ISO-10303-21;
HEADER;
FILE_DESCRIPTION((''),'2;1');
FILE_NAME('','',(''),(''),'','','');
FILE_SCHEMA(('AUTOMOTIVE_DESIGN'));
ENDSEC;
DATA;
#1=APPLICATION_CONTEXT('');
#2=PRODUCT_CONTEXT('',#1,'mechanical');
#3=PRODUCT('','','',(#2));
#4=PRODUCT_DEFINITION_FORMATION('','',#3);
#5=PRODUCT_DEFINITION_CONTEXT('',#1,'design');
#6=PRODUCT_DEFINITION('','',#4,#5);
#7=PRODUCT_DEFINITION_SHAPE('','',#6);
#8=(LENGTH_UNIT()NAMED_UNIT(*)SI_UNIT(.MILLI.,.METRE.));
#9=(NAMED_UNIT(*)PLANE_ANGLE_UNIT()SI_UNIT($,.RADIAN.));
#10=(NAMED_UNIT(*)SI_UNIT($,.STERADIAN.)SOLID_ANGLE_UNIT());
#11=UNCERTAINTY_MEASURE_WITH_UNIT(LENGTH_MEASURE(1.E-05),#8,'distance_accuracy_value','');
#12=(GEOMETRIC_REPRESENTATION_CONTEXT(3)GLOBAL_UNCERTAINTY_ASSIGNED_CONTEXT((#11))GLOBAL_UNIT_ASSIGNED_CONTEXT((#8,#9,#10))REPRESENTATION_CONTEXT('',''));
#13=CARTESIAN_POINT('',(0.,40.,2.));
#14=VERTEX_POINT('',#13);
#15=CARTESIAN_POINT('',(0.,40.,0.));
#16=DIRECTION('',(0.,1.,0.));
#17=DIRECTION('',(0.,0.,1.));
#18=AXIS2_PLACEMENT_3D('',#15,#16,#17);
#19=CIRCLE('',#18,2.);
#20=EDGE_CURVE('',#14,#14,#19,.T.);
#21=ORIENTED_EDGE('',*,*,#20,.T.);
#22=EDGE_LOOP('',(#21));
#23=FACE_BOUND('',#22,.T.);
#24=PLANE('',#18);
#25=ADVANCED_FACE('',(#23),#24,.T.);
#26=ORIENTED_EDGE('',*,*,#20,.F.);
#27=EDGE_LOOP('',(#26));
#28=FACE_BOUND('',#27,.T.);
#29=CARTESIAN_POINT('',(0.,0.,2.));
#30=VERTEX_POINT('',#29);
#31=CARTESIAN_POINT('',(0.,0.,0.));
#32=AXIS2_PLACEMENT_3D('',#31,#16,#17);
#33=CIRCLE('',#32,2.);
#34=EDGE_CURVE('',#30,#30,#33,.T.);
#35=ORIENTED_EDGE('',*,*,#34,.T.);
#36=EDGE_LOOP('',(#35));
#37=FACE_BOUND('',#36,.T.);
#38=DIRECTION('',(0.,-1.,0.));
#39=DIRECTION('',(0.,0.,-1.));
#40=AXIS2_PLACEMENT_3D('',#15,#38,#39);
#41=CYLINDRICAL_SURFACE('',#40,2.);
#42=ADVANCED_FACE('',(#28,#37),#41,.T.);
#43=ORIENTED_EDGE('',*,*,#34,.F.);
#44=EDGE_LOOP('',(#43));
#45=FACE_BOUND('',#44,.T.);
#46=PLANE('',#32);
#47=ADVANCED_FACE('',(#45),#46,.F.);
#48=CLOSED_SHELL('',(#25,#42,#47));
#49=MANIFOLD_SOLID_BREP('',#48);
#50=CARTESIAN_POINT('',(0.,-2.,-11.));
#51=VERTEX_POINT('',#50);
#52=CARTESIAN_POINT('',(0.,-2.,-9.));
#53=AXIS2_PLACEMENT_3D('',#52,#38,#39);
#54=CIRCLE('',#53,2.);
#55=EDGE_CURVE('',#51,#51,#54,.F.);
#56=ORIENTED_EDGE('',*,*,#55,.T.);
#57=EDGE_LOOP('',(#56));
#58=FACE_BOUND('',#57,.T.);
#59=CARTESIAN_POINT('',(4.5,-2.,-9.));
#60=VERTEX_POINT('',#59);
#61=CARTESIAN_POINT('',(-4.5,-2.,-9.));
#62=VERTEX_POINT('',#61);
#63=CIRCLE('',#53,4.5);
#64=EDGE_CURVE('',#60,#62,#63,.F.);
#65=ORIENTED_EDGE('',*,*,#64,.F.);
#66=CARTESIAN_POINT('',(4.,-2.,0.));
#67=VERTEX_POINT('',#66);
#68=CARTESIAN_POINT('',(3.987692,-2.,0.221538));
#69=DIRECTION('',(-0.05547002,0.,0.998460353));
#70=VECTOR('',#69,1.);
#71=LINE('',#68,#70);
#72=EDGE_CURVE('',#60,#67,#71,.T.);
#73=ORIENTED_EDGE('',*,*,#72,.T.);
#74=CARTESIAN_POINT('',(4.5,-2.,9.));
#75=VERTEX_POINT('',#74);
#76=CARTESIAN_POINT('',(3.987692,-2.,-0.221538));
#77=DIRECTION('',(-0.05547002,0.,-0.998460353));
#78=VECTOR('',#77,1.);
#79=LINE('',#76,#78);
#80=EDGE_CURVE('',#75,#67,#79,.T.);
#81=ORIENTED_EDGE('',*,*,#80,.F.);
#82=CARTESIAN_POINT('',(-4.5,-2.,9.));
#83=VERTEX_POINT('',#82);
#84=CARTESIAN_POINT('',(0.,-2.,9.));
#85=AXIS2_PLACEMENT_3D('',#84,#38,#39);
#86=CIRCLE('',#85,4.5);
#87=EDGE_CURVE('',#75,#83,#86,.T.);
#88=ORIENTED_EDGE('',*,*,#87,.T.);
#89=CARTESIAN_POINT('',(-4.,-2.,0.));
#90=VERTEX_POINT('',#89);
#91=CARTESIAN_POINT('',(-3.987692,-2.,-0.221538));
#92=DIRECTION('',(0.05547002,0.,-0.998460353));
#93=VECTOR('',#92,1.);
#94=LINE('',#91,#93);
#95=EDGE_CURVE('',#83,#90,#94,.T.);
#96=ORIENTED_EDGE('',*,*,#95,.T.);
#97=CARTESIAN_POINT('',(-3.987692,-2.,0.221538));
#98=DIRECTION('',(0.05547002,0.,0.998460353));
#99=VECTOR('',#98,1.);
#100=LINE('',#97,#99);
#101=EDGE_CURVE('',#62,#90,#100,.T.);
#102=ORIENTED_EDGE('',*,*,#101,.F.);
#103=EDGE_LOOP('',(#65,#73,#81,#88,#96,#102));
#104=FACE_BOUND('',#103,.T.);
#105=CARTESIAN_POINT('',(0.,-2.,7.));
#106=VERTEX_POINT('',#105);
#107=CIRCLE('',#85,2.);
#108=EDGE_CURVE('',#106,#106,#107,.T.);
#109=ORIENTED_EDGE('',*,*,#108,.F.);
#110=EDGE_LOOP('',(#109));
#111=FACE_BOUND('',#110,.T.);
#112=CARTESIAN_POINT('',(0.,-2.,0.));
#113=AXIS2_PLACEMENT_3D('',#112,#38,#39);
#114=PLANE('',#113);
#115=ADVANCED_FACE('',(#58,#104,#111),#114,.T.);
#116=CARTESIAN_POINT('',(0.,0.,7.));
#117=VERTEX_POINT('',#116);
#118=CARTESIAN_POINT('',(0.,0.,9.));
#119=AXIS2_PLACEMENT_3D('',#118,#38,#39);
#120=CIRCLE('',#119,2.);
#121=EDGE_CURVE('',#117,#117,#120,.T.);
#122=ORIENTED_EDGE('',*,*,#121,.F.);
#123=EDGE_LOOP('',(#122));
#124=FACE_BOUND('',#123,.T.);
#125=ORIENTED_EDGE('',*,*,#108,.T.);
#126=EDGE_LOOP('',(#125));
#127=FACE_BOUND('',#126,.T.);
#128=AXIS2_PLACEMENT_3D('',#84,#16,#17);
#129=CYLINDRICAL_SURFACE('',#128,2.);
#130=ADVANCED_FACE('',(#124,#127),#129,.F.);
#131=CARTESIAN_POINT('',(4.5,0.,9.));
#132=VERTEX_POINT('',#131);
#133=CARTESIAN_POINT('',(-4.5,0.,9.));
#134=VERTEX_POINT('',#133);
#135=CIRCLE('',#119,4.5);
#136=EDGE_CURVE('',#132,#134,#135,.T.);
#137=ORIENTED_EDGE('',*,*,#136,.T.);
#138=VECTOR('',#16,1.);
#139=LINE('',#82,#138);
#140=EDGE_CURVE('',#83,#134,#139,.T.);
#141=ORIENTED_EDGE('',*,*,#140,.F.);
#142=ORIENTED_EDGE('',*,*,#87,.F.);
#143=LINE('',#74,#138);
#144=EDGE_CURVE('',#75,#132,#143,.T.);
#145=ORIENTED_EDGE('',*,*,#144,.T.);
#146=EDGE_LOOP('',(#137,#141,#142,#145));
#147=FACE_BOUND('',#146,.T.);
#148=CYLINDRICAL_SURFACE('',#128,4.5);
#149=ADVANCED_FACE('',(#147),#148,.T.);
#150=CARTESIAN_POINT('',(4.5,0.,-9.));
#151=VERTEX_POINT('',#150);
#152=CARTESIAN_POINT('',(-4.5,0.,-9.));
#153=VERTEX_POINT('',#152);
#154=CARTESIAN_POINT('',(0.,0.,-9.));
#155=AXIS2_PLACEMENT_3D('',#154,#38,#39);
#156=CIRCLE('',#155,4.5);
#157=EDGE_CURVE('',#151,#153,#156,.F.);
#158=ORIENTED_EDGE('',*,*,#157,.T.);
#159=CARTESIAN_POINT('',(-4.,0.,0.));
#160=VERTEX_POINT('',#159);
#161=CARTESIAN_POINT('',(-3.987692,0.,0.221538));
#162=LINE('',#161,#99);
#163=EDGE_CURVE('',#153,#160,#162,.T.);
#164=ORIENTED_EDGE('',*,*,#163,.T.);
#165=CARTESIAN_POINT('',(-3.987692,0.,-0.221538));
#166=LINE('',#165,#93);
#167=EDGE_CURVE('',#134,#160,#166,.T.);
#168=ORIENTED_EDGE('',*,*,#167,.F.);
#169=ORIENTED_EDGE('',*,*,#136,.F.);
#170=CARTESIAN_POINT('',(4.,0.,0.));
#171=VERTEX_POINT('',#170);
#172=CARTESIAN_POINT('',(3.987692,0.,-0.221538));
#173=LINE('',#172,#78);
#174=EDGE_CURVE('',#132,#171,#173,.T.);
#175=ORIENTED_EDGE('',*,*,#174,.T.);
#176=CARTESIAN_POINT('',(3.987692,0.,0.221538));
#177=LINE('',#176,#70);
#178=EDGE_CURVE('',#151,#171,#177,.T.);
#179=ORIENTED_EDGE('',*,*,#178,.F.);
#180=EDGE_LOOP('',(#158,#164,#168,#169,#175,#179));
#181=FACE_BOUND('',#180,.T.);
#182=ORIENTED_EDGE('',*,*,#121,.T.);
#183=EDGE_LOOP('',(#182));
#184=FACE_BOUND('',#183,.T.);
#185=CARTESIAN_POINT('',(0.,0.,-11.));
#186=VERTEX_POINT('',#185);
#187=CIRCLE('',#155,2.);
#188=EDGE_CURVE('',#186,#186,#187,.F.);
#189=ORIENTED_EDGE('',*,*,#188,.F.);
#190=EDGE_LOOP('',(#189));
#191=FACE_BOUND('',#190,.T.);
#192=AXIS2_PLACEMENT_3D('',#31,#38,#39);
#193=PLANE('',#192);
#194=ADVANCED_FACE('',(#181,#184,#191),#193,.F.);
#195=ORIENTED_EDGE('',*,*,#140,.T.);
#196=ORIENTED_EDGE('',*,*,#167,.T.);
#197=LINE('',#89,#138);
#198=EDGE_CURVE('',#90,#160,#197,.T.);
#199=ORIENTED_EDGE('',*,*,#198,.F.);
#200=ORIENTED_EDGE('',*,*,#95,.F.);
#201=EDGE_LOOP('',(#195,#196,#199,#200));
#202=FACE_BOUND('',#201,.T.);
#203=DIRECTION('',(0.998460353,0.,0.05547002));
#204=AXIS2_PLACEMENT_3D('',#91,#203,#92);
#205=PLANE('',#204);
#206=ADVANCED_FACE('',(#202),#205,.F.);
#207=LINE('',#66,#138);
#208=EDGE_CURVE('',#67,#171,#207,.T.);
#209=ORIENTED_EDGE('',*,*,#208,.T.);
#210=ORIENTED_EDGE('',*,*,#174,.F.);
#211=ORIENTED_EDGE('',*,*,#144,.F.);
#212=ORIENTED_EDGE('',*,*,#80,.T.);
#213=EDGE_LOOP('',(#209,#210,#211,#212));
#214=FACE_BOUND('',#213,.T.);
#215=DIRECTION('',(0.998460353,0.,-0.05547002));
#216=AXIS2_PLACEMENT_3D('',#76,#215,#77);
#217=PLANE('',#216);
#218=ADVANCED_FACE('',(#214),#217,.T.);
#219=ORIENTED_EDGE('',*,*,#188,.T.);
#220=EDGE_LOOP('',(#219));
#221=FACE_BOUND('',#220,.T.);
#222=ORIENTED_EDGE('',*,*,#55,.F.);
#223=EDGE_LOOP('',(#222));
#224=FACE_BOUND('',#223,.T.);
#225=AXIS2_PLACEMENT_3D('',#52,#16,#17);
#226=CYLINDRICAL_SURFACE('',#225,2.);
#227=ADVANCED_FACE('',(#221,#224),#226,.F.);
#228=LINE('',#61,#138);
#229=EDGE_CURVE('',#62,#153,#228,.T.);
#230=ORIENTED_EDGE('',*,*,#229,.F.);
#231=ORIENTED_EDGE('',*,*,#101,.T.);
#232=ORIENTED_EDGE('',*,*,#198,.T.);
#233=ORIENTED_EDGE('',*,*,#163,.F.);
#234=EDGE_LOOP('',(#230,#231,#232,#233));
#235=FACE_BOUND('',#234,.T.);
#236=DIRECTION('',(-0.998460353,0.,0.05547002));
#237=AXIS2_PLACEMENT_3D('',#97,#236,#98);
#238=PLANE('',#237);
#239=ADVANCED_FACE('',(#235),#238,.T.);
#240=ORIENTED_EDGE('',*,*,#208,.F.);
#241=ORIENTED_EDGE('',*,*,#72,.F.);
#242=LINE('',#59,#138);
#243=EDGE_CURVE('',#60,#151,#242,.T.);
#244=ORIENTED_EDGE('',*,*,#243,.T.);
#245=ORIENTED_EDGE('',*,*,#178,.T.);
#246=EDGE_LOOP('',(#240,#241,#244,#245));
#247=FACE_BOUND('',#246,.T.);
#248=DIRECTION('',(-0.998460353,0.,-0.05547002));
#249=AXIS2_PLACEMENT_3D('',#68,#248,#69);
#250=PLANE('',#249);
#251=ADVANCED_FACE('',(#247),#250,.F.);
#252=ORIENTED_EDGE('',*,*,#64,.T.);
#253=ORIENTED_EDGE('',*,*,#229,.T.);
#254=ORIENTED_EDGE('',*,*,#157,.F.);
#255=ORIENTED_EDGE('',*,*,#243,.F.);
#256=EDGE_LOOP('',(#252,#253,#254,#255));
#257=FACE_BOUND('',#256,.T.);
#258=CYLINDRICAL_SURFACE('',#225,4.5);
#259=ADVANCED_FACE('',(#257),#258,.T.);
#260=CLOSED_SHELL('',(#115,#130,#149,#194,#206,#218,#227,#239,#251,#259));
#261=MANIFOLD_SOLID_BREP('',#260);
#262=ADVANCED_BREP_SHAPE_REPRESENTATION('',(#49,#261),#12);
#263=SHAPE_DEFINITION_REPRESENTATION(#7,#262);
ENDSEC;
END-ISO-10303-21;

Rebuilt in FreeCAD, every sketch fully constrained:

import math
import FreeCAD as App
import Part
import Sketcher

doc = App.newDocument("Part")
body = doc.addObject("PartDesign::Body", "Body")

sketch1 = body.newObject("Sketcher::SketchObject", "Sketch")
sketch1.AttachmentSupport = (doc.getObject("XZ_Plane"), [""])
sketch1.MapMode = "FlatFace"
sketch1.addGeometry(Part.Circle(App.Vector(0, 0, 0), App.Vector(0, 0, 1), 2), False)
sketch1.addConstraint(Sketcher.Constraint("Coincident", 0, 3, -1, 1))
sketch1.addConstraint(Sketcher.Constraint("Diameter", 0, 4.0))
pad1 = body.newObject("PartDesign::Pad", "Pad")
pad1.Profile = sketch1
pad1.Length = 40
pad1.Reversed = True
body2 = doc.addObject("PartDesign::Body", "Body001")

sketch2 = body2.newObject("Sketcher::SketchObject", "Sketch001")
sketch2.AttachmentSupport = (doc.getObject("XZ_Plane001"), [""])
sketch2.MapMode = "FlatFace"
sketch2.addGeometry(Part.ArcOfCircle(Part.Circle(App.Vector(0, 9, 0), App.Vector(0, 0, 1), 4.5), math.radians(0), math.radians(180)), False)
sketch2.addGeometry(Part.LineSegment(App.Vector(-4.5, 9, 0), App.Vector(-4, 0, 0)), False)
sketch2.addGeometry(Part.LineSegment(App.Vector(-4, 0, 0), App.Vector(-4.5, -9, 0)), False)
sketch2.addGeometry(Part.ArcOfCircle(Part.Circle(App.Vector(0, -9, 0), App.Vector(0, 0, 1), 4.5), math.radians(180), math.radians(360)), False)
sketch2.addGeometry(Part.LineSegment(App.Vector(4.5, -9, 0), App.Vector(4, 0, 0)), False)
sketch2.addGeometry(Part.LineSegment(App.Vector(4, 0, 0), App.Vector(4.5, 9, 0)), False)
sketch2.addGeometry(Part.Circle(App.Vector(0, -9, 0), App.Vector(0, 0, 1), 2), False)
sketch2.addGeometry(Part.Circle(App.Vector(0, 9, 0), App.Vector(0, 0, 1), 2), False)
sketch2.addConstraint(Sketcher.Constraint("Coincident", 0, 2, 1, 1))
sketch2.addConstraint(Sketcher.Constraint("Coincident", 1, 2, 2, 1))
sketch2.addConstraint(Sketcher.Constraint("Coincident", 2, 2, 3, 1))
sketch2.addConstraint(Sketcher.Constraint("Coincident", 3, 2, 4, 1))
sketch2.addConstraint(Sketcher.Constraint("Coincident", 4, 2, 5, 1))
sketch2.addConstraint(Sketcher.Constraint("Coincident", 5, 2, 0, 1))
sketch2.addConstraint(Sketcher.Constraint("Coincident", 6, 3, 3, 3))
sketch2.addConstraint(Sketcher.Constraint("Coincident", 7, 3, 0, 3))
sketch2.addConstraint(Sketcher.Constraint("Equal", 0, 3))
sketch2.addConstraint(Sketcher.Constraint("Equal", 6, 7))
sketch2.addConstraint(Sketcher.Constraint("Symmetric", 0, 3, 3, 3, -1, 1))
sketch2.addConstraint(Sketcher.Constraint("Symmetric", 1, 2, 4, 2, -1, 1))
sketch2.addConstraint(Sketcher.Constraint("Symmetric", 2, 2, 3, 2, -2))
sketch2.addConstraint(Sketcher.Constraint("PointOnObject", 1, 2, -1))
sketch2.addConstraint(Sketcher.Constraint("Parallel", 1, 4))
sketch2.addConstraint(Sketcher.Constraint("Parallel", 2, 5))
sketch2.addConstraint(Sketcher.Constraint("Horizontal", 7, 3, 0, 2))
sketch2.addConstraint(Sketcher.Constraint("Diameter", 6, 4.0))
sketch2.addConstraint(Sketcher.Constraint("Radius", 0, 4.5))
sketch2.addConstraint(Sketcher.Constraint("DistanceY", -1, 1, 0, 3, 9.0))
sketch2.addConstraint(Sketcher.Constraint("DistanceX", 1, 2, -1, 1, 4.0))
pad2 = body2.newObject("PartDesign::Pad", "Pad001")
pad2.Profile = sketch2
pad2.Length = 2

doc.recompute()
